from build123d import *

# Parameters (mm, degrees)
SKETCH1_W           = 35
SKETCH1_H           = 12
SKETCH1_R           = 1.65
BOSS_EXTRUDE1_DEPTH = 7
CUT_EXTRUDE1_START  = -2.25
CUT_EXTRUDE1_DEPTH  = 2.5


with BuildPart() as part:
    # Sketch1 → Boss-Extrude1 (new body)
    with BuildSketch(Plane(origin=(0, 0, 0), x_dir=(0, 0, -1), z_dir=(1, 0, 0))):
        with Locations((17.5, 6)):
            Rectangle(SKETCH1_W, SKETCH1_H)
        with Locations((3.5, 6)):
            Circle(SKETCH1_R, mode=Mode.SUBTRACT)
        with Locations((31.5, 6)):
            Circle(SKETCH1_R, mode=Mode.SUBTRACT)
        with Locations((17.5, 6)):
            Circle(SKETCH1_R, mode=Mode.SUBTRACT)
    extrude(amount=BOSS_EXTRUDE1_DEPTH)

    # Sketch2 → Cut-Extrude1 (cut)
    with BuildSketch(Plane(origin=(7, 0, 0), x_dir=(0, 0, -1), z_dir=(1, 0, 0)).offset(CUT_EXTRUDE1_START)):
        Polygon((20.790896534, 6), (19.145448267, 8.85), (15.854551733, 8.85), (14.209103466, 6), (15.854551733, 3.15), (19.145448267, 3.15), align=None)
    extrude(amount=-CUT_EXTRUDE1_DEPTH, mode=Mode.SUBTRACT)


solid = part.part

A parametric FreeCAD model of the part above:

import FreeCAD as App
import Part
import Sketcher
Q = App.Units.Quantity


def add_polygon(sketch, points):
    """Adds a closed chain of lines whose ends are joined by coincident constraints."""
    first, n = sketch.GeometryCount, len(points)
    for a, b in zip(points, points[1:] + points[:1]):
        sketch.addGeometry(Part.LineSegment(App.Vector(*a, 0), App.Vector(*b, 0)), False)
    for i in range(n):
        sketch.addConstraint(Sketcher.Constraint("Coincident", first + i, 2, first + (i + 1) % n, 1))

doc = App.newDocument("Part")
body = doc.addObject("PartDesign::Body", "Body")

# Sketch on YZ plane
sketch1 = body.newObject("Sketcher::SketchObject", "Sketch")
sketch1.AttachmentSupport = (doc.getObject("YZ_Plane"), [""])
sketch1.MapMode = "FlatFace"
add_polygon(sketch1, [(12, 0), (0, 0), (0, -35), (12, -35)])  # lines 0-3
sketch1.addGeometry(Part.Circle(App.Vector(6, -3.5, 0), App.Vector(0, 0, 1), 1.65), False)  # 4
sketch1.addGeometry(Part.Circle(App.Vector(6, -17.5, 0), App.Vector(0, 0, 1), 1.65), False)  # 5
sketch1.addGeometry(Part.Circle(App.Vector(6, -31.5, 0), App.Vector(0, 0, 1), 1.65), False)  # 6
sketch1.addConstraint(Sketcher.Constraint("Horizontal", 0))
sketch1.addConstraint(Sketcher.Constraint("Vertical", 1))
sketch1.addConstraint(Sketcher.Constraint("Horizontal", 2))
sketch1.addConstraint(Sketcher.Constraint("Vertical", 3))
sketch1.addConstraint(Sketcher.Constraint("Coincident", 0, 2, -1, 1))
sketch1.addConstraint(Sketcher.Constraint("Equal", 4, 5))
sketch1.addConstraint(Sketcher.Constraint("Equal", 5, 6))
sketch1.addConstraint(Sketcher.Constraint("Vertical", 4, 3, 5, 3))
sketch1.addConstraint(Sketcher.Constraint("Vertical", 5, 3, 6, 3))
sketch1.addConstraint(Sketcher.Constraint("Diameter", 4, 3.3))
sketch1.addConstraint(Sketcher.Constraint("DistanceX", 0, 2, 0, 1, 12.0))
sketch1.addConstraint(Sketcher.Constraint("DistanceY", 1, 2, 1, 1, 35.0))
sketch1.addConstraint(Sketcher.Constraint("DistanceX", -1, 1, 4, 3, 6.0))
sketch1.addConstraint(Sketcher.Constraint("DistanceY", 5, 3, 4, 3, 14.0))
sketch1.addConstraint(Sketcher.Constraint("DistanceY", 6, 3, 5, 3, 14.0))
sketch1.addConstraint(Sketcher.Constraint("DistanceY", 4, 3, -1, 1, 3.5))
pad1 = body.newObject("PartDesign::Pad", "Pad")
pad1.Profile = sketch1
pad1.Length = 7

# Sketch on YZ plane
sketch2 = body.newObject("Sketcher::SketchObject", "Sketch001")
sketch2.AttachmentSupport = (doc.getObject("YZ_Plane"), [""])
sketch2.MapMode = "FlatFace"
sketch2.AttachmentOffset = App.Placement(App.Vector(0, 0, 4.75), App.Rotation())
add_polygon(sketch2, [(6, -20.790897), (8.85, -19.145448), (8.85, -15.854552), (6, -14.209103), (3.15, -15.854552), (3.15, -19.145448)])  # lines 0-5
sketch2.addConstraint(Sketcher.Constraint("Vertical", 1))
sketch2.addConstraint(Sketcher.Constraint("Vertical", 4))
sketch2.addConstraint(Sketcher.Constraint("Parallel", 0, 3))
sketch2.addConstraint(Sketcher.Constraint("Parallel", 2, 5))
sketch2.addConstraint(Sketcher.Constraint("Horizontal", 1, 2, 3, 2))
sketch2.addConstraint(Sketcher.Constraint("Horizontal", 0, 2, 4, 2))
sketch2.addConstraint(Sketcher.Constraint("Vertical", 2, 2, 5, 2))
sketch2.addConstraint(Sketcher.Constraint("Angle", 0, Q("30 deg")))
sketch2.addConstraint(Sketcher.Constraint("DistanceX", -1, 1, 2, 2, 6.0))
sketch2.addConstraint(Sketcher.Constraint("DistanceX", 3, 2, 1, 2, 5.7))
sketch2.addConstraint(Sketcher.Constraint("DistanceY", 1, 1, 1, 2, 3.290897))
sketch2.addConstraint(Sketcher.Constraint("DistanceY", 0, 2, -1, 1, 19.145448))
pocket1 = body.newObject("PartDesign::Pocket", "Pocket")
pocket1.Profile = sketch2
pocket1.Length = 2.5

doc.recompute()
